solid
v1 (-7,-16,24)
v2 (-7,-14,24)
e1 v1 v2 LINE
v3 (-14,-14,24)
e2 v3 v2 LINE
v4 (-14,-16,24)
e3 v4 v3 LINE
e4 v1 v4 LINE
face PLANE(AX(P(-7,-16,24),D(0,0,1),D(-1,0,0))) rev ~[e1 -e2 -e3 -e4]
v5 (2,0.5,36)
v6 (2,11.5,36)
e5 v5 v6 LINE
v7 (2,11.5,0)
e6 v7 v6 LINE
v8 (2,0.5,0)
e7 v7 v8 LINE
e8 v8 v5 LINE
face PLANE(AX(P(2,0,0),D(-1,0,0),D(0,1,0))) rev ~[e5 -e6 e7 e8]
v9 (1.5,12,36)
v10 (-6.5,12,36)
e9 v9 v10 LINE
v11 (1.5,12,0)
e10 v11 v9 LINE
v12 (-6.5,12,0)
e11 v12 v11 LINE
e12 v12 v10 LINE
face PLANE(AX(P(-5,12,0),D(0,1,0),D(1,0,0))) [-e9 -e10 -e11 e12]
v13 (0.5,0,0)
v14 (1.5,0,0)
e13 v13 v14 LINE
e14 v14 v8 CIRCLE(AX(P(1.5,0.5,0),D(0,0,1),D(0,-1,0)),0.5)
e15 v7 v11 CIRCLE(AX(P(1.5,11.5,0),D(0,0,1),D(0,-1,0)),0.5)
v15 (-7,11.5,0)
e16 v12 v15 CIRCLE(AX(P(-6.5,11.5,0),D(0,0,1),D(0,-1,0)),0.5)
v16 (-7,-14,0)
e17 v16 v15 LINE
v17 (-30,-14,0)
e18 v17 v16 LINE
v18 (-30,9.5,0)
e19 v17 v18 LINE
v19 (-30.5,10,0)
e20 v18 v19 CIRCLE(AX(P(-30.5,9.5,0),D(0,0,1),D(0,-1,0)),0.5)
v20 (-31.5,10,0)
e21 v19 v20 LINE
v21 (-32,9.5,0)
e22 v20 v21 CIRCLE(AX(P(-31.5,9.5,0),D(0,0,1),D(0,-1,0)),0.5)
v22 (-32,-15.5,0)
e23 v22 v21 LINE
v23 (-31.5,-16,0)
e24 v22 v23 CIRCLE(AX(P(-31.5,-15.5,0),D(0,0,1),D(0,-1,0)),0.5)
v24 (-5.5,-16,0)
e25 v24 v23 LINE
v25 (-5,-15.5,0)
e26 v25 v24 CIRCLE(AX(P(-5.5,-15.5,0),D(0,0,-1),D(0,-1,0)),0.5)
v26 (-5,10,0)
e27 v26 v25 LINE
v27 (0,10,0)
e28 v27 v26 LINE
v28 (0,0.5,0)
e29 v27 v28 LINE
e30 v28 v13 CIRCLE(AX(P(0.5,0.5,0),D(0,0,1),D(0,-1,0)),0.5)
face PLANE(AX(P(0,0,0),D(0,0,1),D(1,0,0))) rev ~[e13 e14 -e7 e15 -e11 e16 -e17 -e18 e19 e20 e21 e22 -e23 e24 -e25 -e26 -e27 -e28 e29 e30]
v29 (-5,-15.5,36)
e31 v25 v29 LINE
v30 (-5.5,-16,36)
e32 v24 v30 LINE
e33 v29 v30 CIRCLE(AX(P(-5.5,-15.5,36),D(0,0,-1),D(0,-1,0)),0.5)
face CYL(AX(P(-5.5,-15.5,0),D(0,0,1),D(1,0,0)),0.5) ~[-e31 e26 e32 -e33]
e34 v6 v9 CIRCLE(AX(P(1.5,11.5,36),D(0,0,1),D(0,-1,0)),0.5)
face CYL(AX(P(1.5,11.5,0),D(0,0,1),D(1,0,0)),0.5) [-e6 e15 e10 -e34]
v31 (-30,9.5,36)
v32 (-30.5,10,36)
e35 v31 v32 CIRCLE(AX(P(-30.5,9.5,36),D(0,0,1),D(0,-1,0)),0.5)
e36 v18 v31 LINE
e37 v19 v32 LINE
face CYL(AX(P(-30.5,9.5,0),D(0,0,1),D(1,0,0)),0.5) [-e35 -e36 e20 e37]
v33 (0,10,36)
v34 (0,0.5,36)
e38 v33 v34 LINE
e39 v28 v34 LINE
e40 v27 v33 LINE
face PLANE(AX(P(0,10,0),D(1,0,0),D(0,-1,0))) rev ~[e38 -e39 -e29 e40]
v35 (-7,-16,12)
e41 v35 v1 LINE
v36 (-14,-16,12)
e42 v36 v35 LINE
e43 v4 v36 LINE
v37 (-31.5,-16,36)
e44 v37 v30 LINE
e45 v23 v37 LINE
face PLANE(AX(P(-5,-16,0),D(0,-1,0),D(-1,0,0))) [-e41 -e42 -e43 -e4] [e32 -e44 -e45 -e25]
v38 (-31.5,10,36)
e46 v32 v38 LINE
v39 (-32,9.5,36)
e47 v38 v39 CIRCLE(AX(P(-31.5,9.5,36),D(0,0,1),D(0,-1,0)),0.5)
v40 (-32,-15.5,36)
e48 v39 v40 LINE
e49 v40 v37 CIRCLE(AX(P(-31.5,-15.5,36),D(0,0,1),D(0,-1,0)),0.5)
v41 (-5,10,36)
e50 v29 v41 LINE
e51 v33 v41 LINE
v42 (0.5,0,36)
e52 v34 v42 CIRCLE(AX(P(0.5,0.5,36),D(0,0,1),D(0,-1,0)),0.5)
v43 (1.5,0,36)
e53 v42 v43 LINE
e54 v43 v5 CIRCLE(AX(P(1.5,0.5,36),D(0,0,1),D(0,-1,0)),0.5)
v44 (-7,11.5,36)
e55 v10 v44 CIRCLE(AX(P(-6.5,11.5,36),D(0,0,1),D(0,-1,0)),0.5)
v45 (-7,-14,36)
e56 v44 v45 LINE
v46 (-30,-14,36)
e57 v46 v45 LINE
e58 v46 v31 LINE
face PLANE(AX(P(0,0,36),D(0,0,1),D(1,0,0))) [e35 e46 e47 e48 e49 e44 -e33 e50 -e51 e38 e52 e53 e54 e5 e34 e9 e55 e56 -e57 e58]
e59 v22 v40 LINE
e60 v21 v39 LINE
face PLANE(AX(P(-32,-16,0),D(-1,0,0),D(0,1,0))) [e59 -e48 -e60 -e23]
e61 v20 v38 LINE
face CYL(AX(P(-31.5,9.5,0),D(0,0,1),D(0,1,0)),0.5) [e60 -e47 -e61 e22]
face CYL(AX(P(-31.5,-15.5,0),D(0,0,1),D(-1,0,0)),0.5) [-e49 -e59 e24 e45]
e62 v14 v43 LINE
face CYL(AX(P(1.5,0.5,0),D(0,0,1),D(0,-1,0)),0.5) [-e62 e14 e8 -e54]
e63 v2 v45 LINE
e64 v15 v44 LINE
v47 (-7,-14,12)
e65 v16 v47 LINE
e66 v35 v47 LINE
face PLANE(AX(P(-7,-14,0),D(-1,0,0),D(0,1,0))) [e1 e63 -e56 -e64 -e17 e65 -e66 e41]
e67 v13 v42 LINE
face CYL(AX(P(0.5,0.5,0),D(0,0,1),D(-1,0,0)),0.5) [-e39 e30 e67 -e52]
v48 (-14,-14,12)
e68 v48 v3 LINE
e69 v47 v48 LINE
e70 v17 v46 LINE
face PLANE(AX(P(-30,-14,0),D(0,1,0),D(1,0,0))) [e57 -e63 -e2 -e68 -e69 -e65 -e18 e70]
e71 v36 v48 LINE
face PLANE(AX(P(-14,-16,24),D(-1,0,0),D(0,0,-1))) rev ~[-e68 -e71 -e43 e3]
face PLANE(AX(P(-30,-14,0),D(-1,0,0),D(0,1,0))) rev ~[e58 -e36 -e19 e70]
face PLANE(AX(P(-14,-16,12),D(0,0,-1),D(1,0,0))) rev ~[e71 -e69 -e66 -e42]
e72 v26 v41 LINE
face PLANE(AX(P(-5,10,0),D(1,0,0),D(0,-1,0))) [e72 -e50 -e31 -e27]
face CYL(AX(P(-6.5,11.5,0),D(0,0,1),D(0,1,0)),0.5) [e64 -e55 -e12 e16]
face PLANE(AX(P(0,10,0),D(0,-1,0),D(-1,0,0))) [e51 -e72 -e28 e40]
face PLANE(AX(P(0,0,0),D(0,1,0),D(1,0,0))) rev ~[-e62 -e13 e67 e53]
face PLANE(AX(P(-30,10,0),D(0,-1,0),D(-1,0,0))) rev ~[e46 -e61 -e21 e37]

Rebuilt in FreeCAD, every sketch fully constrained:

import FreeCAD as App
import Part
import Sketcher
Q = App.Units.Quantity


def edges_at(feature, points):
    """Names of the edges that pass closest to the given points."""
    edges = feature.Shape.Edges
    near = lambda p: min(range(len(edges)), key=lambda i: edges[i].distToShape(Part.Vertex(*p))[0])
    return sorted({f"Edge{near(p) + 1}" for p in points})


def add_polygon(sketch, points):
    """Adds a closed chain of lines whose ends are joined by coincident constraints."""
    first, n = sketch.GeometryCount, len(points)
    for a, b in zip(points, points[1:] + points[:1]):
        sketch.addGeometry(Part.LineSegment(App.Vector(*a, 0), App.Vector(*b, 0)), False)
    for i in range(n):
        sketch.addConstraint(Sketcher.Constraint("Coincident", first + i, 2, first + (i + 1) % n, 1))

doc = App.newDocument("Part")
body = doc.addObject("PartDesign::Body", "Body")

# Sketch on XY plane
sketch1 = body.newObject("Sketcher::SketchObject", "Sketch")
sketch1.AttachmentSupport = (doc.getObject("XY_Plane"), [""])
sketch1.MapMode = "FlatFace"
add_polygon(sketch1, [(0, 10), (0, 0), (2, 0), (2, 12), (-7, 12), (-7, -14), (-30, -14), (-30, 10), (-32, 10), (-32, -16), (-5, -16), (-5, 10)])  # lines 0-11
sketch1.addConstraint([
    Sketcher.Constraint("Vertical", 0),
    Sketcher.Constraint("Horizontal", 1),
    Sketcher.Constraint("Vertical", 2),
    Sketcher.Constraint("Horizontal", 3),
    Sketcher.Constraint("Vertical", 4),
    Sketcher.Constraint("Horizontal", 5),
    Sketcher.Constraint("Vertical", 6),
    Sketcher.Constraint("Horizontal", 7),
    Sketcher.Constraint("Vertical", 8),
    Sketcher.Constraint("Horizontal", 9),
    Sketcher.Constraint("Vertical", 10),
    Sketcher.Constraint("Horizontal", 11),
    Sketcher.Constraint("Coincident", 0, 2, -1, 1),
    Sketcher.Constraint("Horizontal", 7, 2, 10, 2),
    Sketcher.Constraint("Equal", 1, 7),
    Sketcher.Constraint("Equal", 4, 8),
    Sketcher.Constraint("DistanceX", 1, 1, 1, 2, Q("2 mm")),
    Sketcher.Constraint("DistanceX", 5, 2, 5, 1, Q("23 mm")),
    Sketcher.Constraint("DistanceX", 11, 1, 11, 2, Q("5 mm")),
    Sketcher.Constraint("DistanceY", 0, 2, 0, 1, Q("10 mm")),
    Sketcher.Constraint("DistanceY", 6, 1, 6, 2, Q("24 mm")),
    Sketcher.Constraint("DistanceY", 6, 2, 3, 2, Q("2 mm")),
    Sketcher.Constraint("DistanceX", 4, 2, 9, 2, Q("2 mm")),
])
pad1 = body.newObject("PartDesign::Pad", "Pad")
pad1.Profile = sketch1
pad1.Length = 36

# Sketch on XZ plane
sketch2 = body.newObject("Sketcher::SketchObject", "Sketch001")
sketch2.AttachmentSupport = (doc.getObject("XZ_Plane"), [""])
sketch2.MapMode = "FlatFace"
sketch2.AttachmentOffset = App.Placement(App.Vector(0, 0, 16), App.Rotation())
add_polygon(sketch2, [(-14, 24), (-14, 12), (-7, 12), (-7, 24)])  # lines 0-3
sketch2.addConstraint([
    Sketcher.Constraint("Vertical", 0),
    Sketcher.Constraint("Horizontal", 1),
    Sketcher.Constraint("Vertical", 2),
    Sketcher.Constraint("Horizontal", 3),
    Sketcher.Constraint("DistanceX", 1, 1, 1, 2, Q("7 mm")),
    Sketcher.Constraint("DistanceY", 0, 2, 0, 1, Q("12 mm")),
    Sketcher.Constraint("DistanceY", -1, 1, 0, 2, Q("12 mm")),
    Sketcher.Constraint("DistanceX", 1, 2, -1, 1, Q("7 mm")),
])
pocket1 = body.newObject("PartDesign::Pocket", "Pocket")
pocket1.Profile = sketch2
pocket1.Length = 3
doc.recompute()

fillet = body.newObject("PartDesign::Fillet", "Fillet")
fillet.Base = (pocket1, edges_at(pocket1, [
    (0, 0, 18),
    (2, 0, 18),
    (-5, -16, 18),
    (-32, -16, 18),
    (2, 12, 18),
    (-7, 12, 18),
    (-30, 10, 18),
    (-32, 10, 18),
]))
fillet.Radius = 0.5

doc.recompute()
